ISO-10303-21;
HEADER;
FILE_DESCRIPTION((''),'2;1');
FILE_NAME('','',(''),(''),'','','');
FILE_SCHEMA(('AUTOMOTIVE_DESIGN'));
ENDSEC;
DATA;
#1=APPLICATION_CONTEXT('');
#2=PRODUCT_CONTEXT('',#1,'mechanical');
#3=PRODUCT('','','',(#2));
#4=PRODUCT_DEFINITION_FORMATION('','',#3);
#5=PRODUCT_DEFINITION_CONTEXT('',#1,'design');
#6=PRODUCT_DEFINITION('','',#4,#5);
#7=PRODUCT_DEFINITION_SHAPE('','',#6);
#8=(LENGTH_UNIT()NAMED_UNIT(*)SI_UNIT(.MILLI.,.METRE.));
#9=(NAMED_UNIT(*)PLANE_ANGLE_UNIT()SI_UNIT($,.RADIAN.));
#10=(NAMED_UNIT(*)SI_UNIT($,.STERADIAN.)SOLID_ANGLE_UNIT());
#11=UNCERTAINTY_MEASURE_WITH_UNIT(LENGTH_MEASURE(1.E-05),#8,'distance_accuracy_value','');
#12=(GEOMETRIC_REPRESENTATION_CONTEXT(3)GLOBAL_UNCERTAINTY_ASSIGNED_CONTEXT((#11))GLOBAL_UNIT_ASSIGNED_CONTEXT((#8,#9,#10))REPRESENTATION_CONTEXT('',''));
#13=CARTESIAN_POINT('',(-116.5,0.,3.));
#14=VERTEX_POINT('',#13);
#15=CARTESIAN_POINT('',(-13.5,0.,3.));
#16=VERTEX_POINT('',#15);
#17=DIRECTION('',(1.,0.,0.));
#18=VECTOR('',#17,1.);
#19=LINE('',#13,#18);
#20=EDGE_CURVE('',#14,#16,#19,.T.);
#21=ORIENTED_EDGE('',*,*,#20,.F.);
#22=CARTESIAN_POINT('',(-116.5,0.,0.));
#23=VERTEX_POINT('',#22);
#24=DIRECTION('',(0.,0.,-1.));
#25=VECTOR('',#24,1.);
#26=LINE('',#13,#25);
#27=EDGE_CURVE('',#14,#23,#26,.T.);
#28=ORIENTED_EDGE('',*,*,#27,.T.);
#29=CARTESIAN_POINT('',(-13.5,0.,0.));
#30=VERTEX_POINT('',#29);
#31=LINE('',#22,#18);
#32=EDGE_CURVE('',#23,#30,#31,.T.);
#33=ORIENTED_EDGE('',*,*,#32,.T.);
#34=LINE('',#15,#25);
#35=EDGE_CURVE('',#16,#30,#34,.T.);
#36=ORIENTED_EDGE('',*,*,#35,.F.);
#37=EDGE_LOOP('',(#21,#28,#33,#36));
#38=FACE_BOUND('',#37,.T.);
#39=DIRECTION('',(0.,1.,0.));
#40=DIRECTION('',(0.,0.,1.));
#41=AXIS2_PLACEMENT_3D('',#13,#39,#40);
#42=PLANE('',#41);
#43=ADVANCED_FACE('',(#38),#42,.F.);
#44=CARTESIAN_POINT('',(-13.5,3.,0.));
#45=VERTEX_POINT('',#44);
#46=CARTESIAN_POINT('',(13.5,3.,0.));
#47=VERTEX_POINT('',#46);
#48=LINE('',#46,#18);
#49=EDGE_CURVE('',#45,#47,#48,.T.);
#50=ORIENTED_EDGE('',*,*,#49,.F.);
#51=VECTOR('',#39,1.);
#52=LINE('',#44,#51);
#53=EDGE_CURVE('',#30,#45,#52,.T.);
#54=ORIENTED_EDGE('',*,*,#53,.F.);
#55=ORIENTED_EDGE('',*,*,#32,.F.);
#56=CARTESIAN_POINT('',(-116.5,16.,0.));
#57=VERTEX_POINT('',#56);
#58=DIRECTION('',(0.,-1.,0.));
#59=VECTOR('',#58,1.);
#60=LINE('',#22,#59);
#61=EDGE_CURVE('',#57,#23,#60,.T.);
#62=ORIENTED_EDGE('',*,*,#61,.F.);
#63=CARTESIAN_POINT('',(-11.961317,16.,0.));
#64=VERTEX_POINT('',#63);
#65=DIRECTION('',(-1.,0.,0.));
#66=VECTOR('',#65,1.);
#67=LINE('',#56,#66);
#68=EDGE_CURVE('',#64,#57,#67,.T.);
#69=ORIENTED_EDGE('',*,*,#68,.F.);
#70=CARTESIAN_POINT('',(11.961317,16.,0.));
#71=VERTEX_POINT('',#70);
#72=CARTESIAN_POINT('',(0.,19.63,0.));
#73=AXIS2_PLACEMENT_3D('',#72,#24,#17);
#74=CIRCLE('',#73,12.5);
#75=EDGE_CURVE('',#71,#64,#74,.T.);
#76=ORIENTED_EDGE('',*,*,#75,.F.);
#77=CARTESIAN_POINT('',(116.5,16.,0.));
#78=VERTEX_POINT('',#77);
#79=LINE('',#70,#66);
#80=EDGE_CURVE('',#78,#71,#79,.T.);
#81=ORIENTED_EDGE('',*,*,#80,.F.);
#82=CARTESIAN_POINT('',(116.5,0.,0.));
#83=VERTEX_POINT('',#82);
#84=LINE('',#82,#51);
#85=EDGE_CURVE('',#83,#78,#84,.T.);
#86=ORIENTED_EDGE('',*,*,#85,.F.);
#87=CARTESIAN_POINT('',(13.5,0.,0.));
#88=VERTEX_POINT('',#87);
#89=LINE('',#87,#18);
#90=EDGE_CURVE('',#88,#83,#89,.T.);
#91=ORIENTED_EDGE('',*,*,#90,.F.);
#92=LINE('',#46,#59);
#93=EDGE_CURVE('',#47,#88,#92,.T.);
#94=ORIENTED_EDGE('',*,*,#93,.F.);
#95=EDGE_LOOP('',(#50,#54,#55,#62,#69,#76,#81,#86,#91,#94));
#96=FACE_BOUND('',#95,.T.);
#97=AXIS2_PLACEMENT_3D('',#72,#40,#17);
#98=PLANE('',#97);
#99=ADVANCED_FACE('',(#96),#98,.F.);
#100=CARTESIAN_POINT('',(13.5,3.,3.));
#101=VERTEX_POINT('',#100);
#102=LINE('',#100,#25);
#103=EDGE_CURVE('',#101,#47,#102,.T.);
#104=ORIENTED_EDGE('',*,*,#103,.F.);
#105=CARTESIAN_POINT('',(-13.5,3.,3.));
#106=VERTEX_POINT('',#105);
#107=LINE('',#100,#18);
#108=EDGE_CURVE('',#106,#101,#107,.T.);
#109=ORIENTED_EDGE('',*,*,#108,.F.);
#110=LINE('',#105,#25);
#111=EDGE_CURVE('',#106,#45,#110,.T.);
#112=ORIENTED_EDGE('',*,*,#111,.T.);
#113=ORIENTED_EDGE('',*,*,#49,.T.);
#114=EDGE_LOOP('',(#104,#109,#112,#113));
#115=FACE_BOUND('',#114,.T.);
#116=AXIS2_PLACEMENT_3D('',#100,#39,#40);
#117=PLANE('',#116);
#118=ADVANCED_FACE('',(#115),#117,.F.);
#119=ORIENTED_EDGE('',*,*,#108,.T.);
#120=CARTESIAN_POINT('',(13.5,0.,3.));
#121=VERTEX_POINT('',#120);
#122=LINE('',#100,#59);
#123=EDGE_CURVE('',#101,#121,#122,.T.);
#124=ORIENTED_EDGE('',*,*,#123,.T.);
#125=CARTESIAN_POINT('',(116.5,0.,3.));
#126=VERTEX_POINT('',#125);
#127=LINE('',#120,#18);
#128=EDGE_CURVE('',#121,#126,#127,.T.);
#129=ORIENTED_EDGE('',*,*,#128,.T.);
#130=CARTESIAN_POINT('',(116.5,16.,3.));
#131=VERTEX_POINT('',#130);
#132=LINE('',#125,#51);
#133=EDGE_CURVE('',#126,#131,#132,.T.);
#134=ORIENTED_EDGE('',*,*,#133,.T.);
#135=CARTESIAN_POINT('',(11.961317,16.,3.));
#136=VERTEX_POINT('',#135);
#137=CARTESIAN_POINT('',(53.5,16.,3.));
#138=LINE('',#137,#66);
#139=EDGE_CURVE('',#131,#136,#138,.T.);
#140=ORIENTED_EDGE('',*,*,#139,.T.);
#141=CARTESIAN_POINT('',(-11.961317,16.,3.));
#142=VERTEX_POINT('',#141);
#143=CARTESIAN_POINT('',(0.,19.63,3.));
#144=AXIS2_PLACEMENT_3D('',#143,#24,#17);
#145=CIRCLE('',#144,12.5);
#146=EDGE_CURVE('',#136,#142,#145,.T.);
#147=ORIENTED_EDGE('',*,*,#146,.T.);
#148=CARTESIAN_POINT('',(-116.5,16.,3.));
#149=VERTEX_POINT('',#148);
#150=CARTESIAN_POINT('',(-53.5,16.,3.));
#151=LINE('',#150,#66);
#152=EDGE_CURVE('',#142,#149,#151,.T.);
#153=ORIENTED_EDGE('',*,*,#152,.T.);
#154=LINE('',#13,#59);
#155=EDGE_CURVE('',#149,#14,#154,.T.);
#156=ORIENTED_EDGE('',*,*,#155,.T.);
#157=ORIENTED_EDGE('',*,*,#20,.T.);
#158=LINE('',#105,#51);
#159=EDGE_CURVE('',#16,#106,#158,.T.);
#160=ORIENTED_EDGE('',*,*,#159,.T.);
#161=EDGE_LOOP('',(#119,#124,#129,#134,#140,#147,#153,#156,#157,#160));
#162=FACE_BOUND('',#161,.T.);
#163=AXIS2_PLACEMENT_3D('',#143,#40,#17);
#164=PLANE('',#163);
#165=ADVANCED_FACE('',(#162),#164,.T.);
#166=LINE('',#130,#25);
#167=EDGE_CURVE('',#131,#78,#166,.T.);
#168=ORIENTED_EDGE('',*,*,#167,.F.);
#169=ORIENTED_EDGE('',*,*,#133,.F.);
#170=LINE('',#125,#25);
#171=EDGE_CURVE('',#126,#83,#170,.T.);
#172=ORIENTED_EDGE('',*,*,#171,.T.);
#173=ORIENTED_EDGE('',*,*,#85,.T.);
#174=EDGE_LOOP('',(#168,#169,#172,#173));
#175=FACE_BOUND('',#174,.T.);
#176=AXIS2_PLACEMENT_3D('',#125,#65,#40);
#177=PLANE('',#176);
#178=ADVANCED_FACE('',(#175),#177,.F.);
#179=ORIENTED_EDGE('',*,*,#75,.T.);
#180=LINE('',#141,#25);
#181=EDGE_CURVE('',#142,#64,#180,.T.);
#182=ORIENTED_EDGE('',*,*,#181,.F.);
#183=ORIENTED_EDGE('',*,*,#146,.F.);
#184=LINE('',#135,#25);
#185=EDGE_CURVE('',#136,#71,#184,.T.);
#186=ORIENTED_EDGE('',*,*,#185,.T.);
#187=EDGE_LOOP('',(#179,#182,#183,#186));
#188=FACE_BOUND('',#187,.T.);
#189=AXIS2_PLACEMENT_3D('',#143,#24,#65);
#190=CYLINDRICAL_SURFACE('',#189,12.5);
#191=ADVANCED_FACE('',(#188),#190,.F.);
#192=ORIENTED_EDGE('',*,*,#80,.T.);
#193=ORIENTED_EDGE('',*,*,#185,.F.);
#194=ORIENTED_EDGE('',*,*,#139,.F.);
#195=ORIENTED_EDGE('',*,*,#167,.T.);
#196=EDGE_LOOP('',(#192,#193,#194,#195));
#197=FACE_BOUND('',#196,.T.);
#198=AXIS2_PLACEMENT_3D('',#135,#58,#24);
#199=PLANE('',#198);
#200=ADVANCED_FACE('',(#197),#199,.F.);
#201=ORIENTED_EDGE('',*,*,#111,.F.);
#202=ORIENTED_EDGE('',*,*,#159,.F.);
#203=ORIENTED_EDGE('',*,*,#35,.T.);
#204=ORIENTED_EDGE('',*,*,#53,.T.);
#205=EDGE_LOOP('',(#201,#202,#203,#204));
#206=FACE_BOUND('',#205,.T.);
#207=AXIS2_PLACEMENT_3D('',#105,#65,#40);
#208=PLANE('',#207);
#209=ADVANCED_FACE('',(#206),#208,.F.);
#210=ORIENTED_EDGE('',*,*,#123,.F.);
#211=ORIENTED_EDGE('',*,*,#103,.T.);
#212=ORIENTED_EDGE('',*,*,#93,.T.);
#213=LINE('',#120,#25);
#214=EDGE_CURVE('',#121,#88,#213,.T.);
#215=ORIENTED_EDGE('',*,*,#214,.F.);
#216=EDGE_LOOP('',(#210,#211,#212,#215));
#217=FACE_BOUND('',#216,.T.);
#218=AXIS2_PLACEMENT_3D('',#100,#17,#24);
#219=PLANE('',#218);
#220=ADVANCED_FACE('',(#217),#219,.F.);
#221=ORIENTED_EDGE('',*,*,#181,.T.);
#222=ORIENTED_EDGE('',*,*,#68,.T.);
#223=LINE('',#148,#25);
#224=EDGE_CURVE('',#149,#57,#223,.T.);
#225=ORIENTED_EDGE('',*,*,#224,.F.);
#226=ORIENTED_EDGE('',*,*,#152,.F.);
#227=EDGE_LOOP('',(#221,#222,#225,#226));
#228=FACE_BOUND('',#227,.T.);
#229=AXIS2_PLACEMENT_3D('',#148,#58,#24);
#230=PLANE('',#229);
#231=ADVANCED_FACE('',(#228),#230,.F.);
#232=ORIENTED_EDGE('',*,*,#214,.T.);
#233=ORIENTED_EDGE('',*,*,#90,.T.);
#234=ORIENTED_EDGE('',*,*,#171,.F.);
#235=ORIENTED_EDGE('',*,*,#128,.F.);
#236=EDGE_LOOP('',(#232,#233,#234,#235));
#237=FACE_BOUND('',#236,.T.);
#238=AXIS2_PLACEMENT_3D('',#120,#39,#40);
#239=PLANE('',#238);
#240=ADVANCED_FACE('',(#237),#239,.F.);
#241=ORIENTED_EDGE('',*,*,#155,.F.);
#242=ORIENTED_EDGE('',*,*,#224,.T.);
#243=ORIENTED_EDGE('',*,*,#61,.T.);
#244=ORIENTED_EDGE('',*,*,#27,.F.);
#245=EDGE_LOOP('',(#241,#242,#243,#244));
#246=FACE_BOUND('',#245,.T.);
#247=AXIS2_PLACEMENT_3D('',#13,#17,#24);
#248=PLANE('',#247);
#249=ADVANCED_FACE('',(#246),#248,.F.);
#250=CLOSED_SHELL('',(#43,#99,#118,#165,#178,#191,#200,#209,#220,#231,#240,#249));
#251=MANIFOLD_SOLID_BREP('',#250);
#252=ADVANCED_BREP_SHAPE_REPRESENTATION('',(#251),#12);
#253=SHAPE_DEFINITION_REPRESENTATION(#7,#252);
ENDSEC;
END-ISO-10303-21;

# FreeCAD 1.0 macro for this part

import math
import FreeCAD as App
import Part
import Sketcher

V = App.Vector
Q = App.Units.Quantity

doc = App.newDocument("Part")
body = doc.addObject("PartDesign::Body", "Body")

sketch1 = body.newObject("Sketcher::SketchObject", "Sketch")
sketch1.AttachmentSupport = (doc.getObject("XY_Plane"), [""])
sketch1.MapMode = "FlatFace"
sketch1.addGeometry([
    Part.LineSegment(V(-116.5, 0, 0), V(-13.5, 0, 0)),
    Part.LineSegment(V(-13.5, 0, 0), V(-13.5, 3, 0)),
    Part.LineSegment(V(-13.5, 3, 0), V(13.5, 3, 0)),
    Part.LineSegment(V(13.5, 3, 0), V(13.5, 0, 0)),
    Part.LineSegment(V(13.5, 0, 0), V(116.5, 0, 0)),
    Part.LineSegment(V(116.5, 0, 0), V(116.5, 16, 0)),
    Part.LineSegment(V(116.5, 16, 0), V(12, 16, 0)),
    Part.ArcOfCircle(Part.Circle(V(0, 19.6, 0), V(0, 0, 1), 12.5), math.radians(-163), math.radians(-17)),
    Part.LineSegment(V(-12, 16, 0), V(-116.5, 16, 0)),
    Part.LineSegment(V(-116.5, 16, 0), V(-116.5, 0, 0)),
], False)
sketch1.addConstraint([
    Sketcher.Constraint("Coincident", 0, 2, 1, 1),
    Sketcher.Constraint("Coincident", 1, 2, 2, 1),
    Sketcher.Constraint("Coincident", 2, 2, 3, 1),
    Sketcher.Constraint("Coincident", 3, 2, 4, 1),
    Sketcher.Constraint("Coincident", 4, 2, 5, 1),
    Sketcher.Constraint("Coincident", 5, 2, 6, 1),
    Sketcher.Constraint("Coincident", 6, 2, 7, 2),
    Sketcher.Constraint("Coincident", 7, 1, 8, 1),
    Sketcher.Constraint("Coincident", 8, 2, 9, 1),
    Sketcher.Constraint("Coincident", 9, 2, 0, 1),
    Sketcher.Constraint("Horizontal", 0),
    Sketcher.Constraint("Vertical", 1),
    Sketcher.Constraint("Horizontal", 2),
    Sketcher.Constraint("Vertical", 3),
    Sketcher.Constraint("Horizontal", 4),
    Sketcher.Constraint("Vertical", 5),
    Sketcher.Constraint("Horizontal", 6),
    Sketcher.Constraint("Horizontal", 8),
    Sketcher.Constraint("Vertical", 9),
    Sketcher.Constraint("Symmetric", 0, 2, 3, 2, -1, 1),
    Sketcher.Constraint("Symmetric", 6, 2, 7, 1, -2),
    Sketcher.Constraint("Symmetric", 4, 2, 9, 2, -2),
    Sketcher.Constraint("Radius", 7, Q("12.5 mm")),
    Sketcher.Constraint("DistanceX", 0, 1, 0, 2, Q("103 mm")),
    Sketcher.Constraint("DistanceX", 2, 1, 2, 2, Q("27 mm")),
    Sketcher.Constraint("DistanceY", 1, 1, 1, 2, Q("3 mm")),
    Sketcher.Constraint("DistanceY", 5, 1, 5, 2, Q("16 mm")),
    Sketcher.Constraint("DistanceY", -1, 1, 7, 3, Q("19.63 mm")),
])
pad1 = body.newObject("PartDesign::Pad", "Pad")
pad1.Profile = sketch1
pad1.Length = 3

doc.recompute()
